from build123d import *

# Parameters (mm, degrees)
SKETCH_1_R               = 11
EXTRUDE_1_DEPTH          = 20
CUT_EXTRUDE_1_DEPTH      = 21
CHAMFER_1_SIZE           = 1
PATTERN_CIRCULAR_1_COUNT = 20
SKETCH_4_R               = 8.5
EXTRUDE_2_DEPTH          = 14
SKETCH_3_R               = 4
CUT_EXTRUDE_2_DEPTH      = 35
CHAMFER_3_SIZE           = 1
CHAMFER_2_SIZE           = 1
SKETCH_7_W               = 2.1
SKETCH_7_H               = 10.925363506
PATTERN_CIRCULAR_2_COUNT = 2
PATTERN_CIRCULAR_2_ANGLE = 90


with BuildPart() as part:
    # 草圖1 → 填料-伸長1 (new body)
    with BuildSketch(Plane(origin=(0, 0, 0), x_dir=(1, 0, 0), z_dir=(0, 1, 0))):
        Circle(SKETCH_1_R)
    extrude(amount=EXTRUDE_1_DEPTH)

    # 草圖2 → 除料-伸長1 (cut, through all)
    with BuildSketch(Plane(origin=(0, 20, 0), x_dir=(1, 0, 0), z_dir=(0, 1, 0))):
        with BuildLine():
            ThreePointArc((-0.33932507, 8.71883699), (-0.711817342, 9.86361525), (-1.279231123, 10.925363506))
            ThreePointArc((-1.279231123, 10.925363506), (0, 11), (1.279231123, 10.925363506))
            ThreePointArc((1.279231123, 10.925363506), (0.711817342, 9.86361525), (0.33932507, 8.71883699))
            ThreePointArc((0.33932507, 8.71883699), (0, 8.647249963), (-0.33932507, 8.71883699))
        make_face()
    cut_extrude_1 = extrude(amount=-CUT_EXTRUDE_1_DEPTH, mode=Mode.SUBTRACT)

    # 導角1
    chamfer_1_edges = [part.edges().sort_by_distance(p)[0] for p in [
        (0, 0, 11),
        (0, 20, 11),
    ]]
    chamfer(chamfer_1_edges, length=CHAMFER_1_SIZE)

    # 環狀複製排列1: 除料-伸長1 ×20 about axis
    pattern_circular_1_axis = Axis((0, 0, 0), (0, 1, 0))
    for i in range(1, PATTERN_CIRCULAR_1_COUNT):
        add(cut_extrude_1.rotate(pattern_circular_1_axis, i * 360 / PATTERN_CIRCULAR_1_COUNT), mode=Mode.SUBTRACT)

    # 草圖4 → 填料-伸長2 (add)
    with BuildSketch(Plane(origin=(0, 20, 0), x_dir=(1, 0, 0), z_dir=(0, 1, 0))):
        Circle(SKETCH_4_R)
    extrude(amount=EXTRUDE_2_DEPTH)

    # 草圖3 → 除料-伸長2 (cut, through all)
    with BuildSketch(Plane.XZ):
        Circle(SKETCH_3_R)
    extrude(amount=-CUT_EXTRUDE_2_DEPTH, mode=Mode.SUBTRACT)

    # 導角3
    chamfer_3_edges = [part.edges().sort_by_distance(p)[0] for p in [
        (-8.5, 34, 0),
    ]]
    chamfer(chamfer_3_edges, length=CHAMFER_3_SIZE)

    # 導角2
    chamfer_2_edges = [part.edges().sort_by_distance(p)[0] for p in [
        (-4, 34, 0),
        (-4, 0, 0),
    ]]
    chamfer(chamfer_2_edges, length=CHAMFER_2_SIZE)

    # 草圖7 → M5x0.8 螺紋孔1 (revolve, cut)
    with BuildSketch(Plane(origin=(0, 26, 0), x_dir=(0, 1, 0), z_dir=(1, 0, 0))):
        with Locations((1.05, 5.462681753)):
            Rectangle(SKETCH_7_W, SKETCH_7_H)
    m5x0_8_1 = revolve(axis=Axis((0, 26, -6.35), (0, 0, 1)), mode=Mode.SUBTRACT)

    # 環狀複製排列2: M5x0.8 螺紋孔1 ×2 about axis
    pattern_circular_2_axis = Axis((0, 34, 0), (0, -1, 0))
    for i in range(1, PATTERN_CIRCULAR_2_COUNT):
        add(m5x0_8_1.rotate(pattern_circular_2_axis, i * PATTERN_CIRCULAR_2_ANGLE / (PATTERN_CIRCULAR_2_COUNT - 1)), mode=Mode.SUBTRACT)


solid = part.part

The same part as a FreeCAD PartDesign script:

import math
import FreeCAD as App
import Part
import Sketcher

V = App.Vector
Q = App.Units.Quantity


def edges_at(feature, points):
    """Names of the edges that pass closest to the given points."""
    edges = feature.Shape.Edges
    near = lambda p: min(range(len(edges)), key=lambda i: edges[i].distToShape(Part.Vertex(*p))[0])
    return sorted({f"Edge{near(p) + 1}" for p in points})


def add_polygon(sketch, points):
    """Adds a closed chain of lines whose ends are joined by coincident constraints."""
    first, n = sketch.GeometryCount, len(points)
    for a, b in zip(points, points[1:] + points[:1]):
        sketch.addGeometry(Part.LineSegment(App.Vector(*a, 0), App.Vector(*b, 0)), False)
    for i in range(n):
        sketch.addConstraint(Sketcher.Constraint("Coincident", first + i, 2, first + (i + 1) % n, 1))

doc = App.newDocument("Part")
body = doc.addObject("PartDesign::Body", "Body")

# Sketch on XZ plane
sketch1 = body.newObject("Sketcher::SketchObject", "Sketch")
sketch1.AttachmentSupport = (doc.getObject("XZ_Plane"), [""])
sketch1.MapMode = "FlatFace"
sketch1.addGeometry(Part.Circle(V(0, 0, 0), V(0, 0, 1), 11), False)
sketch1.addConstraint([
    Sketcher.Constraint("Coincident", 0, 3, -1, 1),
    Sketcher.Constraint("Diameter", 0, Q("22 mm")),
])
pad1 = body.newObject("PartDesign::Pad", "Pad")
pad1.Profile = sketch1
pad1.Length = 20
pad1.Reversed = True

# Sketch on XZ plane
sketch2 = body.newObject("Sketcher::SketchObject", "Sketch001")
sketch2.AttachmentSupport = (doc.getObject("XZ_Plane"), [""])
sketch2.MapMode = "FlatFace"
sketch2.AttachmentOffset = App.Placement(V(0, 0, -20), App.Rotation())
sketch2.addGeometry([
    Part.ArcOfCircle(Part.Circle(V(-7.00506, -7.182905, 0), V(0, 0, 1), 6.840403), math.radians(-33.169024), math.radians(-12.975722)),
    Part.ArcOfCircle(Part.Circle(V(0, -9.48725, 0), V(0, 0, 1), 0.84), math.radians(66.174127), math.radians(113.825873)),
    Part.ArcOfCircle(Part.Circle(V(7.00506, -7.182905, 0), V(0, 0, 1), 6.840403), math.radians(-167.024278), math.radians(-146.830976)),
    Part.ArcOfCircle(Part.Circle(V(0, 0, 0), V(0, 0, 1), 11), math.radians(-96.678252), math.radians(-83.321748)),
], False)
sketch2.addConstraint([
    Sketcher.Constraint("Coincident", 0, 2, 1, 2),
    Sketcher.Constraint("Coincident", 1, 1, 2, 1),
    Sketcher.Constraint("Coincident", 2, 2, 3, 2),
    Sketcher.Constraint("Coincident", 3, 1, 0, 1),
    Sketcher.Constraint("Coincident", 3, 3, -1, 1),
    Sketcher.Constraint("Equal", 0, 2),
    Sketcher.Constraint("Symmetric", 0, 3, 2, 3, -2),
    Sketcher.Constraint("PointOnObject", 1, 3, -2),
    Sketcher.Constraint("Radius", 3, Q("11 mm")),
    Sketcher.Constraint("Radius", 1, Q("0.84 mm")),
    Sketcher.Constraint("Radius", 0, Q("6.840403 mm")),
    Sketcher.Constraint("DistanceX", 0, 3, -1, 1, Q("7.00506 mm")),
    Sketcher.Constraint("DistanceY", 1, 3, -1, 1, Q("9.48725 mm")),
    Sketcher.Constraint("DistanceX", -1, 1, 2, 2, Q("1.279231 mm")),
])
pocket1 = body.newObject("PartDesign::Pocket", "Pocket")
pocket1.Profile = sketch2
pocket1.Type = "ThroughAll"
pocket1.Reversed = True
doc.recompute()

chamfer = body.newObject("PartDesign::Chamfer", "Chamfer")
chamfer.Base = (pocket1, edges_at(pocket1, [(0, 0, 11), (0, 20, 11)]))
chamfer.Size = 1
doc.recompute()

polarpattern = body.newObject("PartDesign::PolarPattern", "PolarPattern")
polarpattern.Originals = [pocket1]
polarpattern.Axis = (doc.getObject("Y_Axis"), [""])
polarpattern.Angle = 360
polarpattern.Occurrences = 20
body.Tip = polarpattern

# Sketch on XZ plane
sketch3 = body.newObject("Sketcher::SketchObject", "Sketch002")
sketch3.AttachmentSupport = (doc.getObject("XZ_Plane"), [""])
sketch3.MapMode = "FlatFace"
sketch3.AttachmentOffset = App.Placement(V(0, 0, -20), App.Rotation())
sketch3.addGeometry(Part.Circle(V(0, 0, 0), V(0, 0, 1), 8.5), False)
sketch3.addConstraint([
    Sketcher.Constraint("Coincident", 0, 3, -1, 1),
    Sketcher.Constraint("Diameter", 0, Q("17 mm")),
])
pad2 = body.newObject("PartDesign::Pad", "Pad001")
pad2.Profile = sketch3
pad2.Length = 14
pad2.Reversed = True

# Sketch on XZ plane
sketch4 = body.newObject("Sketcher::SketchObject", "Sketch003")
sketch4.AttachmentSupport = (doc.getObject("XZ_Plane"), [""])
sketch4.MapMode = "FlatFace"
sketch4.addGeometry(Part.Circle(V(0, 0, 0), V(0, 0, 1), 4), False)
sketch4.addConstraint([
    Sketcher.Constraint("Coincident", 0, 3, -1, 1),
    Sketcher.Constraint("Diameter", 0, Q("8 mm")),
])
pocket2 = body.newObject("PartDesign::Pocket", "Pocket001")
pocket2.Profile = sketch4
pocket2.Type = "ThroughAll"
doc.recompute()

chamfer2 = body.newObject("PartDesign::Chamfer", "Chamfer001")
chamfer2.Base = (pocket2, edges_at(pocket2, [(-8.5, 34, 0)]))
chamfer2.Size = 1
doc.recompute()

chamfer3 = body.newObject("PartDesign::Chamfer", "Chamfer002")
chamfer3.Base = (chamfer2, edges_at(chamfer2, [(-4, 34, 0), (-4, 0, 0)]))
chamfer3.Size = 1

# Sketch on YZ plane
sketch5 = body.newObject("Sketcher::SketchObject", "Sketch004")
sketch5.AttachmentSupport = (doc.getObject("YZ_Plane"), [""])
sketch5.MapMode = "FlatFace"
add_polygon(sketch5, [(26, 10.925364), (26, 0), (28.1, 0), (28.1, 10.925364)])  # lines 0-3
sketch5.addGeometry(Part.LineSegment(V(26, 0, 0), V(26, 10.925364, 0)), True)  # axis
sketch5.addConstraint([
    Sketcher.Constraint("Vertical", 0),
    Sketcher.Constraint("Horizontal", 1),
    Sketcher.Constraint("Vertical", 2),
    Sketcher.Constraint("Horizontal", 3),
    Sketcher.Constraint("Vertical", 4),
    Sketcher.Constraint("Coincident", 4, 1, 0, 2),
    Sketcher.Constraint("PointOnObject", 0, 2, -1),
    Sketcher.Constraint("Horizontal", 2, 2, 4, 2),
    Sketcher.Constraint("DistanceX", 1, 1, 1, 2, Q("2.1 mm")),
    Sketcher.Constraint("DistanceX", -1, 1, 0, 2, Q("26 mm")),
    Sketcher.Constraint("DistanceY", 0, 2, 0, 1, Q("10.925364 mm")),
])
groove = body.newObject("PartDesign::Groove", "Groove")
groove.Profile = sketch5
groove.ReferenceAxis = (sketch5, ["Axis0"])
groove.Angle = 360
doc.recompute()

polarpattern2 = body.newObject("PartDesign::PolarPattern", "PolarPattern001")
polarpattern2.Originals = [groove]
polarpattern2.Axis = (doc.getObject("Y_Axis"), [""])
polarpattern2.Angle = 90
polarpattern2.Occurrences = 2
polarpattern2.Reversed = True
body.Tip = polarpattern2

doc.recompute()
